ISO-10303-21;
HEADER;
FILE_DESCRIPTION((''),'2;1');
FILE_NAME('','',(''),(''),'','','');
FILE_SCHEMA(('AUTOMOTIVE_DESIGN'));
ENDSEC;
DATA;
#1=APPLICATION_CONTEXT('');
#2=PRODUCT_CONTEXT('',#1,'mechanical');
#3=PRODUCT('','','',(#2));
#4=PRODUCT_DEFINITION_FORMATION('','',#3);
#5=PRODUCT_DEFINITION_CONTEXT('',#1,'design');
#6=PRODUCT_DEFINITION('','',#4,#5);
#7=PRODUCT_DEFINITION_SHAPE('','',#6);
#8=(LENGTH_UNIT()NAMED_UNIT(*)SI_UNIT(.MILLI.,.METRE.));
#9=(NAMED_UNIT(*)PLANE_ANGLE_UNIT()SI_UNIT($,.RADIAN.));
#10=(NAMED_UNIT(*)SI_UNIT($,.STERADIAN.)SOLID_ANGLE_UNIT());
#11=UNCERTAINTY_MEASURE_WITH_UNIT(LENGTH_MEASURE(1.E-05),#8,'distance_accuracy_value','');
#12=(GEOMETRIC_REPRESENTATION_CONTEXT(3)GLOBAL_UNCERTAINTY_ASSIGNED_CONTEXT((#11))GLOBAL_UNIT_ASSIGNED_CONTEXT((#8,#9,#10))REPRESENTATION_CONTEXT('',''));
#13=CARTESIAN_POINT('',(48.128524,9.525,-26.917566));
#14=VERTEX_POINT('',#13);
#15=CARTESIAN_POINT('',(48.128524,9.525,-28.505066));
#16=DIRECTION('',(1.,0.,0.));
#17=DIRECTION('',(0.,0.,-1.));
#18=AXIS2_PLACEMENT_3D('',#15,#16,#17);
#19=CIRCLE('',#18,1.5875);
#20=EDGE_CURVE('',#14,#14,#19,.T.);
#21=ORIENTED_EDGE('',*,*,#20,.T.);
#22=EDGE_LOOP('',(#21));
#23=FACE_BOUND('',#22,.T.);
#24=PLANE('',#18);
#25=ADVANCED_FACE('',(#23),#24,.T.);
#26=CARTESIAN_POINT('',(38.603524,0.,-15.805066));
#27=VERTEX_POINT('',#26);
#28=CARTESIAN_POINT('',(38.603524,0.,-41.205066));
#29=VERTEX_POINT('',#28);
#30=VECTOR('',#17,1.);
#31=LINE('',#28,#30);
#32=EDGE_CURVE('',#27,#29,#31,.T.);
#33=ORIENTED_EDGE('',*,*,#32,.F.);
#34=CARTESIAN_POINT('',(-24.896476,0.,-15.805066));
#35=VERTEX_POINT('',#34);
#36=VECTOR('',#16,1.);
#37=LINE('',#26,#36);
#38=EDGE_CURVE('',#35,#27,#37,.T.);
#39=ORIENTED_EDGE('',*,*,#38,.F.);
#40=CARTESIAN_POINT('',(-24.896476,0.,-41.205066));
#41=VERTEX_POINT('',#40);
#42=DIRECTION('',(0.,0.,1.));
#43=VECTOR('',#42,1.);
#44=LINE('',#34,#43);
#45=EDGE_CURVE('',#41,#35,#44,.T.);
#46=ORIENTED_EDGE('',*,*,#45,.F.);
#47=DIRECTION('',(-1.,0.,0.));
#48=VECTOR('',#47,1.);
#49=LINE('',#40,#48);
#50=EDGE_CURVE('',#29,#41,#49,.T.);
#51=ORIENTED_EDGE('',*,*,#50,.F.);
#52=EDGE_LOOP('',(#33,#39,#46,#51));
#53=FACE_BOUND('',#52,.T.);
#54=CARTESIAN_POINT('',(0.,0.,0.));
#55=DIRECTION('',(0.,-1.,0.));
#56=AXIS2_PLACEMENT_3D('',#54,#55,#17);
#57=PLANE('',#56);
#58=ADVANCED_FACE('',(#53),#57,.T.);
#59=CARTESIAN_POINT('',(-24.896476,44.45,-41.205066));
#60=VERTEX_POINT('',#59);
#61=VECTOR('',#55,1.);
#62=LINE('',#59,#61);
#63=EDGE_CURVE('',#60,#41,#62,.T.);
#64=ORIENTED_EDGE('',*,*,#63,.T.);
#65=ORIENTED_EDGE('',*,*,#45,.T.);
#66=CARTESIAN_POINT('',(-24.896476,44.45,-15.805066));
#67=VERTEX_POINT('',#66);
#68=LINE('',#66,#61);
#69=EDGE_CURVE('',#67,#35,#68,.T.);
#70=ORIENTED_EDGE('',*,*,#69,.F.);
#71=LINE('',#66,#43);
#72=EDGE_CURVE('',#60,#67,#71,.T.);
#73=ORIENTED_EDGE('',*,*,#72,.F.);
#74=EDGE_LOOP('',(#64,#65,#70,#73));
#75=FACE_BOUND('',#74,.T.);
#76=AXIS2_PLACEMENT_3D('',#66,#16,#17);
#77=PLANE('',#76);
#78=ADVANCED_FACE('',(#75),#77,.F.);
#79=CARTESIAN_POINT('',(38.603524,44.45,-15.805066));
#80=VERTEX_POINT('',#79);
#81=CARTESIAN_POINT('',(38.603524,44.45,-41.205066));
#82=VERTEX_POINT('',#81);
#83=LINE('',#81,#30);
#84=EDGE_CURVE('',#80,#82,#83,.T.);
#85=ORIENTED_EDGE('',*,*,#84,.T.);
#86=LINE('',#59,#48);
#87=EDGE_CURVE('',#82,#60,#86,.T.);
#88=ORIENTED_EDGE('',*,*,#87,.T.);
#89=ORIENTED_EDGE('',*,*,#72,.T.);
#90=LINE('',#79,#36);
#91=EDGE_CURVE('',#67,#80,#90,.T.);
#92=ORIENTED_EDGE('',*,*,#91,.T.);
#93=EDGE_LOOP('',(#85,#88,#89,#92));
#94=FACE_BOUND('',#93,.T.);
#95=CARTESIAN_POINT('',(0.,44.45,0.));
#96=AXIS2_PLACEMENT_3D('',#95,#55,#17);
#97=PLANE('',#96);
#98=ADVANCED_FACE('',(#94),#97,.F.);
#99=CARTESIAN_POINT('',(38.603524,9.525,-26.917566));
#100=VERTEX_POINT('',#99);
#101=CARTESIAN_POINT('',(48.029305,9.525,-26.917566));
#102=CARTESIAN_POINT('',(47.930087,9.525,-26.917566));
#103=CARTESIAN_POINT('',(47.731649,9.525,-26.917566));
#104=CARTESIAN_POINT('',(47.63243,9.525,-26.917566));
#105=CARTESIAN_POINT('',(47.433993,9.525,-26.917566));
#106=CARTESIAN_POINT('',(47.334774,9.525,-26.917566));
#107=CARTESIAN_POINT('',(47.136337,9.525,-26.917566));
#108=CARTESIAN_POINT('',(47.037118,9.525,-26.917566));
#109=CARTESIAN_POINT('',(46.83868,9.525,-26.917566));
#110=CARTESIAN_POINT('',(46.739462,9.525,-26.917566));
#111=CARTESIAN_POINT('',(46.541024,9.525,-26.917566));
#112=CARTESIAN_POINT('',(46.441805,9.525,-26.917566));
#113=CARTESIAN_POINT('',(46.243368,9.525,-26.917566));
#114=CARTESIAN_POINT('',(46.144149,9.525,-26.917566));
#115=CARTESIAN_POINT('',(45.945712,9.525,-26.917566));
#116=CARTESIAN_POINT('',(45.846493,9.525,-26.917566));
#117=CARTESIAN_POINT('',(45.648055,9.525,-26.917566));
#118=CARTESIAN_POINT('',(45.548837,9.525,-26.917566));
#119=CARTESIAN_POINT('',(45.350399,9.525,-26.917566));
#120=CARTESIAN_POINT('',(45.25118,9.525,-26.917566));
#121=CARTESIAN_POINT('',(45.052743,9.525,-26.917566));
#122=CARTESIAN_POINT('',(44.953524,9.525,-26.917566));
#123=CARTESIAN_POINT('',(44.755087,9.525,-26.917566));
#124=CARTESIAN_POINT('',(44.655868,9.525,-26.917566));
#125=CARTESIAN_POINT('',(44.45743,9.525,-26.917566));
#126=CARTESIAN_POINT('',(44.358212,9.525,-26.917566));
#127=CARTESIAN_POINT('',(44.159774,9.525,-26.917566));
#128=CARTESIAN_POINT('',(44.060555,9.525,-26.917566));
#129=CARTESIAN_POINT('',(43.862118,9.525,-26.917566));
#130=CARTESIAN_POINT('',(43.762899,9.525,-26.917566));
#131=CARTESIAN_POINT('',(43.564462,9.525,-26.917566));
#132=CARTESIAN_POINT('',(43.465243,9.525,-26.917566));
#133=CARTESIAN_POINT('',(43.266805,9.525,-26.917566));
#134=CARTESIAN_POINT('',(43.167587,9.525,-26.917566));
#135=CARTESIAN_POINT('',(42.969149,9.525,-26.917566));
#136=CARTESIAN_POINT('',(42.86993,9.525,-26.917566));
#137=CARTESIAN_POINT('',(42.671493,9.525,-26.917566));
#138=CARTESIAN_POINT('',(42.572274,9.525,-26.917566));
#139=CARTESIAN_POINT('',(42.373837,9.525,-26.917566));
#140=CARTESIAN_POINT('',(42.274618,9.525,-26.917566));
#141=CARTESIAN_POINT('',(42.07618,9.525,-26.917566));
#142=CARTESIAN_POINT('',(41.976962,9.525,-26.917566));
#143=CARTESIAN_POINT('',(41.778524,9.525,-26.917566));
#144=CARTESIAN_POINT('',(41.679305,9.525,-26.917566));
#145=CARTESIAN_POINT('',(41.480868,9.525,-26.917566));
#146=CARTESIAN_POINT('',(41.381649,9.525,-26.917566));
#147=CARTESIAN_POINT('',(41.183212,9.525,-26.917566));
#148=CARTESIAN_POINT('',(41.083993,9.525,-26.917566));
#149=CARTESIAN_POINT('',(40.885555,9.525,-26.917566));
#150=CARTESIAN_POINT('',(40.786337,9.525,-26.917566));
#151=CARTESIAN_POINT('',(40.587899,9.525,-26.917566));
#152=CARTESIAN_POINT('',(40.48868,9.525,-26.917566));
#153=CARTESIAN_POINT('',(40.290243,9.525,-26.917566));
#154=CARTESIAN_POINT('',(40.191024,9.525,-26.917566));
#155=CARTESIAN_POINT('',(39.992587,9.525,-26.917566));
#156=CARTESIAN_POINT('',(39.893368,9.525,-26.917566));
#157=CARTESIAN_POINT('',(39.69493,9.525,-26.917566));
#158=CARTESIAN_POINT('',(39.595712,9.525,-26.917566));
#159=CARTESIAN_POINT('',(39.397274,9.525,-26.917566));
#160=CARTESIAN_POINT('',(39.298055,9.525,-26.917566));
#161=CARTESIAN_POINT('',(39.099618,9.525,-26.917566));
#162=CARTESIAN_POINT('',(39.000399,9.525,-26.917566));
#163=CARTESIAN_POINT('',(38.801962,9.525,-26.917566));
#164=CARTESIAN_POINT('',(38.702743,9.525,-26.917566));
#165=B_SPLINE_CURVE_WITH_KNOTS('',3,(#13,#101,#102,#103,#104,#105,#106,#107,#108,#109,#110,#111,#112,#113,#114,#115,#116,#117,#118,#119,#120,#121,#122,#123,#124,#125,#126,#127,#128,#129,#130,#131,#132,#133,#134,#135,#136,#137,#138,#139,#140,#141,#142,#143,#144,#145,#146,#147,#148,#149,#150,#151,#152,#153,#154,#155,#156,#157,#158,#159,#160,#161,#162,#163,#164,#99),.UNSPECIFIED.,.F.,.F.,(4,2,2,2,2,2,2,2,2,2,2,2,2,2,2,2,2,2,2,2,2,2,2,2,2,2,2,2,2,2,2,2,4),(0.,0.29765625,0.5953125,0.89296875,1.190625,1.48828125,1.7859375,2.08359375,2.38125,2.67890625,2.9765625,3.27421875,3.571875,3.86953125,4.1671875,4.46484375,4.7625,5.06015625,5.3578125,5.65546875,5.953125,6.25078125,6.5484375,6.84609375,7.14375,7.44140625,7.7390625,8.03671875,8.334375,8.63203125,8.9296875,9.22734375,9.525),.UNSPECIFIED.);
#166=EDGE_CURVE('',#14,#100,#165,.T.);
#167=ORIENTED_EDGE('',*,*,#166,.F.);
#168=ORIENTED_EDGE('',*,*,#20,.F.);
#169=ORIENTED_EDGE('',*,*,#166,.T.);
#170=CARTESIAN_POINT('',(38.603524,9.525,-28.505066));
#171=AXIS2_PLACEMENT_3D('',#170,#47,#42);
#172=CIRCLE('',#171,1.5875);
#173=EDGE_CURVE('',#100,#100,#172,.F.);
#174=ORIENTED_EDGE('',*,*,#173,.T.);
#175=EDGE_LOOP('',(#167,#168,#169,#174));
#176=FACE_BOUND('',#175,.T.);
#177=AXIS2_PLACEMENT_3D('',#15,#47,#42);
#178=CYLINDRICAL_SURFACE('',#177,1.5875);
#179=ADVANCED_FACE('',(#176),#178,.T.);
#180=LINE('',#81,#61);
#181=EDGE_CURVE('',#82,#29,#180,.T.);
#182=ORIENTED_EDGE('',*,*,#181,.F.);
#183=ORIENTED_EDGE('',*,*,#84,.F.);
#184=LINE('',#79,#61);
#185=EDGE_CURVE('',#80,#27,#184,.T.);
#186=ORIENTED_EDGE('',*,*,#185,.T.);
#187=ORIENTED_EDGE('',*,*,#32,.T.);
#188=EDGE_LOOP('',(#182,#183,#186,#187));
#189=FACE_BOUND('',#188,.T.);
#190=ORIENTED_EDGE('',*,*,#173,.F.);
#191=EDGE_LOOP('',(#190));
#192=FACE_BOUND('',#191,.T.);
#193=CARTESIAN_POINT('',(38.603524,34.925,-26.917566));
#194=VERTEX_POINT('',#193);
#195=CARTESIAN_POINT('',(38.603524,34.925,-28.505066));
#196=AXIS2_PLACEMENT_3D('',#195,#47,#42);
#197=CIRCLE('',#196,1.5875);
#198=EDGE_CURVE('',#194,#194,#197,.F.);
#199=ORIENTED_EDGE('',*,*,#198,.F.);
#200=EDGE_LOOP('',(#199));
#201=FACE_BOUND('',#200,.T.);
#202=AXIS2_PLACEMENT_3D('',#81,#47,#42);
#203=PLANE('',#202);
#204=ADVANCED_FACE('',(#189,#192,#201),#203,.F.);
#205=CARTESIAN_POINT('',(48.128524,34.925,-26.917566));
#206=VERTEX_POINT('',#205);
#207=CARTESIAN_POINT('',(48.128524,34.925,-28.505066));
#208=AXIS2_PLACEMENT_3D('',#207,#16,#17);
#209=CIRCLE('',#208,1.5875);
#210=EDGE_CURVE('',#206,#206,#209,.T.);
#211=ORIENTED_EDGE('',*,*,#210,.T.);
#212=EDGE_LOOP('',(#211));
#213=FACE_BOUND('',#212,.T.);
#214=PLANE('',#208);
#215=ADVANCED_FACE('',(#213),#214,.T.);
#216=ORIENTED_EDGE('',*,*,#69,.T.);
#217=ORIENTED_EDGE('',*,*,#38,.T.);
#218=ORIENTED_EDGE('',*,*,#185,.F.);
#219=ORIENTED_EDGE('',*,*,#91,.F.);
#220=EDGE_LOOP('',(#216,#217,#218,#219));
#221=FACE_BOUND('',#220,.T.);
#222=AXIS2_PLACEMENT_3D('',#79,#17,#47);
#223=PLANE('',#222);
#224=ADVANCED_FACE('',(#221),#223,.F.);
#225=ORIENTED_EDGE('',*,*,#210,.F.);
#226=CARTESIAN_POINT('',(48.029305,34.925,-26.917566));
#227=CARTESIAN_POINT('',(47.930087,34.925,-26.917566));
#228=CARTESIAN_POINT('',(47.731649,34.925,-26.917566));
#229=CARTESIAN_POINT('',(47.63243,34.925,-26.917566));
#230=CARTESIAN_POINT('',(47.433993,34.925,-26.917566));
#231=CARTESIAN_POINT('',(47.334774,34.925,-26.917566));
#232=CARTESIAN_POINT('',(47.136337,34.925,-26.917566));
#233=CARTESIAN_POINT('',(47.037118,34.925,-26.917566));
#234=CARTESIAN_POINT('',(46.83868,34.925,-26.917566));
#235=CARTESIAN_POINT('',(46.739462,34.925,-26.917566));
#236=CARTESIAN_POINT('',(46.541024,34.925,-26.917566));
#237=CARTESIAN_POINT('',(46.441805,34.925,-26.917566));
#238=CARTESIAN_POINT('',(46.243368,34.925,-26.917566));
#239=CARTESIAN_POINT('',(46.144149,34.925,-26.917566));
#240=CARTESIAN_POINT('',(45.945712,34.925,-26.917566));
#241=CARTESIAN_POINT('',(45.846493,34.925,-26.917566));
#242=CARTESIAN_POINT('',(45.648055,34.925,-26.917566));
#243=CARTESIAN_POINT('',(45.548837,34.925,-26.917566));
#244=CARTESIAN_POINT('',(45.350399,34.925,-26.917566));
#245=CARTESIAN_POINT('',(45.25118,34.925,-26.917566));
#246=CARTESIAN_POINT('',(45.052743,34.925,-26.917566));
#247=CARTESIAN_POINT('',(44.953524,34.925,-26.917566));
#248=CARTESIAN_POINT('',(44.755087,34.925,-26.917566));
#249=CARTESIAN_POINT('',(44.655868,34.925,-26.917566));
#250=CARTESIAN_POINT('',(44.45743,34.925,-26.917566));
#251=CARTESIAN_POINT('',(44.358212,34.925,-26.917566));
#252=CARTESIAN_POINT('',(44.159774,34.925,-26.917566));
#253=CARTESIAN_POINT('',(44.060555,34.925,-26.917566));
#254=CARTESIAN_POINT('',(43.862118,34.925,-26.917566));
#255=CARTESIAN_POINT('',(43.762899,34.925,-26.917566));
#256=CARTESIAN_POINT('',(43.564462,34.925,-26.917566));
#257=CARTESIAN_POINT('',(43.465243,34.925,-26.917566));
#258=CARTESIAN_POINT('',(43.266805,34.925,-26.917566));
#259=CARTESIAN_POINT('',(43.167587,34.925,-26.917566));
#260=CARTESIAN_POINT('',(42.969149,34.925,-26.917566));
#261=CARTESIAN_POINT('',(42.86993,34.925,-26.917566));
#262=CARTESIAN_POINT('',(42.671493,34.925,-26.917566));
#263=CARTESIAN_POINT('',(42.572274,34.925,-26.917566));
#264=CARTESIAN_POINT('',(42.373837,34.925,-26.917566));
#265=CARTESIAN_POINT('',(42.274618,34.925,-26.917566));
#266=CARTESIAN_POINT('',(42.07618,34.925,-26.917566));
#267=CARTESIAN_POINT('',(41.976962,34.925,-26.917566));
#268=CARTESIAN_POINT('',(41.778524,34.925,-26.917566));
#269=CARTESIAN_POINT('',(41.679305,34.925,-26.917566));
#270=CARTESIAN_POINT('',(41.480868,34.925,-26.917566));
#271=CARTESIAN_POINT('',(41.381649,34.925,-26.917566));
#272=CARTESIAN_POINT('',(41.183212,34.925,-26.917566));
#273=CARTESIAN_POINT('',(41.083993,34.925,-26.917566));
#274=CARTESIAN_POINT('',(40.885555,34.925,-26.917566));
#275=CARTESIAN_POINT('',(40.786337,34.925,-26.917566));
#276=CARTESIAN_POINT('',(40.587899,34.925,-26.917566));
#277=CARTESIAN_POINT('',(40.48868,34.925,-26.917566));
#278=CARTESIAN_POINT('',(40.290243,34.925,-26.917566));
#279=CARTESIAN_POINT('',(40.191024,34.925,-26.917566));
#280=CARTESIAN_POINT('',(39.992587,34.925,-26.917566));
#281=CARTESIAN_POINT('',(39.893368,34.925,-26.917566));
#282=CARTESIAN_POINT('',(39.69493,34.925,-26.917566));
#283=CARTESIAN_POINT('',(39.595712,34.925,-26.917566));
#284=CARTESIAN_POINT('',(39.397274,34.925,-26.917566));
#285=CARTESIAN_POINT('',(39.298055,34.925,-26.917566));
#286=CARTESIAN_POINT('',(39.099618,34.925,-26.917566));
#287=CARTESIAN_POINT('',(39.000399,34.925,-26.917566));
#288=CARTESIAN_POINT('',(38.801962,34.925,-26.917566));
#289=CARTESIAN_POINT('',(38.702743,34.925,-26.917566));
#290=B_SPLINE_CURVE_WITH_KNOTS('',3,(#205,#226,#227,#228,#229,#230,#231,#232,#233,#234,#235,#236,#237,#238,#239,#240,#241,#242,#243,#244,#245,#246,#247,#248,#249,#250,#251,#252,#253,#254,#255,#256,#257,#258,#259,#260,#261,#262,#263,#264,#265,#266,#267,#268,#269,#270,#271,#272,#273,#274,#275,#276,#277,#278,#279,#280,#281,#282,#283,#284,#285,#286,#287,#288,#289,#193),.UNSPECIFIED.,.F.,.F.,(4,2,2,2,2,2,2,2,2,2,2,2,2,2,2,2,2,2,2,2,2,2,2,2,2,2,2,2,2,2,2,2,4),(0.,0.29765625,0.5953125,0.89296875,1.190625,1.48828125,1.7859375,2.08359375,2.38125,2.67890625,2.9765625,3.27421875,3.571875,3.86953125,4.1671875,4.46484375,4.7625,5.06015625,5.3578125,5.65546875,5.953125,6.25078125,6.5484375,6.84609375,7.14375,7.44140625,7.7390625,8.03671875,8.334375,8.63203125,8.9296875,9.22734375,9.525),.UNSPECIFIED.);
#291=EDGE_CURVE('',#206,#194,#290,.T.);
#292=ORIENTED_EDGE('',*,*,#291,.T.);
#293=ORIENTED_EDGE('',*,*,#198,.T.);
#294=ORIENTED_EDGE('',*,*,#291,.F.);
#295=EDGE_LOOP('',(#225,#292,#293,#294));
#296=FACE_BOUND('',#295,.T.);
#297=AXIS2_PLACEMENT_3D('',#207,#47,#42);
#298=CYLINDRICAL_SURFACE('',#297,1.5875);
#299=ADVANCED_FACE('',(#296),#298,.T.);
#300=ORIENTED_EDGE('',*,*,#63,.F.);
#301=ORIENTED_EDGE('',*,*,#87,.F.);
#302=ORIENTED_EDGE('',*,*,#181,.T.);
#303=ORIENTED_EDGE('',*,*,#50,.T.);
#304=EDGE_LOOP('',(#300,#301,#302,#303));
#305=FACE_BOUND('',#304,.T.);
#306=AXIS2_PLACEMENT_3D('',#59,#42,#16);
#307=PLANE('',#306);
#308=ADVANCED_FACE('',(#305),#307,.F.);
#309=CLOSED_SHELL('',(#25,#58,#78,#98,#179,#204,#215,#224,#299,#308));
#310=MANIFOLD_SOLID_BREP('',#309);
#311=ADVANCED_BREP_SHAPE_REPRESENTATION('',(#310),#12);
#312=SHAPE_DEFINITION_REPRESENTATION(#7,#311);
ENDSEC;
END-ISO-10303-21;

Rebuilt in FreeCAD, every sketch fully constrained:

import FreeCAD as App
import Part
import Sketcher
Q = App.Units.Quantity

doc = App.newDocument("Part")
body = doc.addObject("PartDesign::Body", "Body")

# Sketch on XZ plane
sketch1 = body.newObject("Sketcher::SketchObject", "Sketch")
sketch1.AttachmentSupport = (doc.getObject("XZ_Plane"), [""])
sketch1.MapMode = "FlatFace"
sketch1.addGeometry([
    Part.LineSegment(App.Vector(-25, -41, 0), App.Vector(-25, -16, 0)),
    Part.LineSegment(App.Vector(-25, -16, 0), App.Vector(39, -16, 0)),
    Part.LineSegment(App.Vector(39, -16, 0), App.Vector(39, -41, 0)),
    Part.LineSegment(App.Vector(39, -41, 0), App.Vector(-25, -41, 0)),
], False)
sketch1.addConstraint([
    Sketcher.Constraint("Coincident", 0, 2, 1, 1),
    Sketcher.Constraint("Coincident", 1, 2, 2, 1),
    Sketcher.Constraint("Coincident", 2, 2, 3, 1),
    Sketcher.Constraint("Coincident", 3, 2, 0, 1),
    Sketcher.Constraint("Vertical", 0),
    Sketcher.Constraint("Horizontal", 1),
    Sketcher.Constraint("Vertical", 2),
    Sketcher.Constraint("Horizontal", 3),
    Sketcher.Constraint("DistanceY", 0, 1, 0, 2, Q("1 in")),
    Sketcher.Constraint("DistanceX", 1, 1, 1, 2, Q("2.5 in")),
    Sketcher.Constraint("DistanceX", 0, 2, -1, 1, 24.896476),
    Sketcher.Constraint("DistanceY", 0, 2, -1, 1, 15.805066),
])
pad1 = body.newObject("PartDesign::Pad", "Pad")
pad1.Profile = sketch1
pad1.Length = Q("1.75 in")
pad1.Reversed = True

# Sketch on YZ plane
sketch2 = body.newObject("Sketcher::SketchObject", "Sketch001")
sketch2.AttachmentSupport = (doc.getObject("YZ_Plane"), [""])
sketch2.MapMode = "FlatFace"
sketch2.AttachmentOffset = App.Placement(App.Vector(0, 0, 38.603524), App.Rotation())
sketch2.addGeometry([
    Part.Circle(App.Vector(34.9, -28.5, 0), App.Vector(0, 0, 1), 1.6),
    Part.Circle(App.Vector(9.5, -28.5, 0), App.Vector(0, 0, 1), 1.6),
], False)
sketch2.addConstraint([
    Sketcher.Constraint("Equal", 0, 1),
    Sketcher.Constraint("Horizontal", 0, 3, 1, 3),
    Sketcher.Constraint("Diameter", 0, Q("0.125 in")),
    Sketcher.Constraint("DistanceX", 1, 3, 0, 3, Q("1 in")),
    Sketcher.Constraint("DistanceX", -1, 1, 0, 3, Q("1.375 in")),
    Sketcher.Constraint("DistanceY", 0, 3, -1, 1, 28.505066),
])
pad2 = body.newObject("PartDesign::Pad", "Pad001")
pad2.Profile = sketch2
pad2.Length = Q("0.375 in")

doc.recompute()
